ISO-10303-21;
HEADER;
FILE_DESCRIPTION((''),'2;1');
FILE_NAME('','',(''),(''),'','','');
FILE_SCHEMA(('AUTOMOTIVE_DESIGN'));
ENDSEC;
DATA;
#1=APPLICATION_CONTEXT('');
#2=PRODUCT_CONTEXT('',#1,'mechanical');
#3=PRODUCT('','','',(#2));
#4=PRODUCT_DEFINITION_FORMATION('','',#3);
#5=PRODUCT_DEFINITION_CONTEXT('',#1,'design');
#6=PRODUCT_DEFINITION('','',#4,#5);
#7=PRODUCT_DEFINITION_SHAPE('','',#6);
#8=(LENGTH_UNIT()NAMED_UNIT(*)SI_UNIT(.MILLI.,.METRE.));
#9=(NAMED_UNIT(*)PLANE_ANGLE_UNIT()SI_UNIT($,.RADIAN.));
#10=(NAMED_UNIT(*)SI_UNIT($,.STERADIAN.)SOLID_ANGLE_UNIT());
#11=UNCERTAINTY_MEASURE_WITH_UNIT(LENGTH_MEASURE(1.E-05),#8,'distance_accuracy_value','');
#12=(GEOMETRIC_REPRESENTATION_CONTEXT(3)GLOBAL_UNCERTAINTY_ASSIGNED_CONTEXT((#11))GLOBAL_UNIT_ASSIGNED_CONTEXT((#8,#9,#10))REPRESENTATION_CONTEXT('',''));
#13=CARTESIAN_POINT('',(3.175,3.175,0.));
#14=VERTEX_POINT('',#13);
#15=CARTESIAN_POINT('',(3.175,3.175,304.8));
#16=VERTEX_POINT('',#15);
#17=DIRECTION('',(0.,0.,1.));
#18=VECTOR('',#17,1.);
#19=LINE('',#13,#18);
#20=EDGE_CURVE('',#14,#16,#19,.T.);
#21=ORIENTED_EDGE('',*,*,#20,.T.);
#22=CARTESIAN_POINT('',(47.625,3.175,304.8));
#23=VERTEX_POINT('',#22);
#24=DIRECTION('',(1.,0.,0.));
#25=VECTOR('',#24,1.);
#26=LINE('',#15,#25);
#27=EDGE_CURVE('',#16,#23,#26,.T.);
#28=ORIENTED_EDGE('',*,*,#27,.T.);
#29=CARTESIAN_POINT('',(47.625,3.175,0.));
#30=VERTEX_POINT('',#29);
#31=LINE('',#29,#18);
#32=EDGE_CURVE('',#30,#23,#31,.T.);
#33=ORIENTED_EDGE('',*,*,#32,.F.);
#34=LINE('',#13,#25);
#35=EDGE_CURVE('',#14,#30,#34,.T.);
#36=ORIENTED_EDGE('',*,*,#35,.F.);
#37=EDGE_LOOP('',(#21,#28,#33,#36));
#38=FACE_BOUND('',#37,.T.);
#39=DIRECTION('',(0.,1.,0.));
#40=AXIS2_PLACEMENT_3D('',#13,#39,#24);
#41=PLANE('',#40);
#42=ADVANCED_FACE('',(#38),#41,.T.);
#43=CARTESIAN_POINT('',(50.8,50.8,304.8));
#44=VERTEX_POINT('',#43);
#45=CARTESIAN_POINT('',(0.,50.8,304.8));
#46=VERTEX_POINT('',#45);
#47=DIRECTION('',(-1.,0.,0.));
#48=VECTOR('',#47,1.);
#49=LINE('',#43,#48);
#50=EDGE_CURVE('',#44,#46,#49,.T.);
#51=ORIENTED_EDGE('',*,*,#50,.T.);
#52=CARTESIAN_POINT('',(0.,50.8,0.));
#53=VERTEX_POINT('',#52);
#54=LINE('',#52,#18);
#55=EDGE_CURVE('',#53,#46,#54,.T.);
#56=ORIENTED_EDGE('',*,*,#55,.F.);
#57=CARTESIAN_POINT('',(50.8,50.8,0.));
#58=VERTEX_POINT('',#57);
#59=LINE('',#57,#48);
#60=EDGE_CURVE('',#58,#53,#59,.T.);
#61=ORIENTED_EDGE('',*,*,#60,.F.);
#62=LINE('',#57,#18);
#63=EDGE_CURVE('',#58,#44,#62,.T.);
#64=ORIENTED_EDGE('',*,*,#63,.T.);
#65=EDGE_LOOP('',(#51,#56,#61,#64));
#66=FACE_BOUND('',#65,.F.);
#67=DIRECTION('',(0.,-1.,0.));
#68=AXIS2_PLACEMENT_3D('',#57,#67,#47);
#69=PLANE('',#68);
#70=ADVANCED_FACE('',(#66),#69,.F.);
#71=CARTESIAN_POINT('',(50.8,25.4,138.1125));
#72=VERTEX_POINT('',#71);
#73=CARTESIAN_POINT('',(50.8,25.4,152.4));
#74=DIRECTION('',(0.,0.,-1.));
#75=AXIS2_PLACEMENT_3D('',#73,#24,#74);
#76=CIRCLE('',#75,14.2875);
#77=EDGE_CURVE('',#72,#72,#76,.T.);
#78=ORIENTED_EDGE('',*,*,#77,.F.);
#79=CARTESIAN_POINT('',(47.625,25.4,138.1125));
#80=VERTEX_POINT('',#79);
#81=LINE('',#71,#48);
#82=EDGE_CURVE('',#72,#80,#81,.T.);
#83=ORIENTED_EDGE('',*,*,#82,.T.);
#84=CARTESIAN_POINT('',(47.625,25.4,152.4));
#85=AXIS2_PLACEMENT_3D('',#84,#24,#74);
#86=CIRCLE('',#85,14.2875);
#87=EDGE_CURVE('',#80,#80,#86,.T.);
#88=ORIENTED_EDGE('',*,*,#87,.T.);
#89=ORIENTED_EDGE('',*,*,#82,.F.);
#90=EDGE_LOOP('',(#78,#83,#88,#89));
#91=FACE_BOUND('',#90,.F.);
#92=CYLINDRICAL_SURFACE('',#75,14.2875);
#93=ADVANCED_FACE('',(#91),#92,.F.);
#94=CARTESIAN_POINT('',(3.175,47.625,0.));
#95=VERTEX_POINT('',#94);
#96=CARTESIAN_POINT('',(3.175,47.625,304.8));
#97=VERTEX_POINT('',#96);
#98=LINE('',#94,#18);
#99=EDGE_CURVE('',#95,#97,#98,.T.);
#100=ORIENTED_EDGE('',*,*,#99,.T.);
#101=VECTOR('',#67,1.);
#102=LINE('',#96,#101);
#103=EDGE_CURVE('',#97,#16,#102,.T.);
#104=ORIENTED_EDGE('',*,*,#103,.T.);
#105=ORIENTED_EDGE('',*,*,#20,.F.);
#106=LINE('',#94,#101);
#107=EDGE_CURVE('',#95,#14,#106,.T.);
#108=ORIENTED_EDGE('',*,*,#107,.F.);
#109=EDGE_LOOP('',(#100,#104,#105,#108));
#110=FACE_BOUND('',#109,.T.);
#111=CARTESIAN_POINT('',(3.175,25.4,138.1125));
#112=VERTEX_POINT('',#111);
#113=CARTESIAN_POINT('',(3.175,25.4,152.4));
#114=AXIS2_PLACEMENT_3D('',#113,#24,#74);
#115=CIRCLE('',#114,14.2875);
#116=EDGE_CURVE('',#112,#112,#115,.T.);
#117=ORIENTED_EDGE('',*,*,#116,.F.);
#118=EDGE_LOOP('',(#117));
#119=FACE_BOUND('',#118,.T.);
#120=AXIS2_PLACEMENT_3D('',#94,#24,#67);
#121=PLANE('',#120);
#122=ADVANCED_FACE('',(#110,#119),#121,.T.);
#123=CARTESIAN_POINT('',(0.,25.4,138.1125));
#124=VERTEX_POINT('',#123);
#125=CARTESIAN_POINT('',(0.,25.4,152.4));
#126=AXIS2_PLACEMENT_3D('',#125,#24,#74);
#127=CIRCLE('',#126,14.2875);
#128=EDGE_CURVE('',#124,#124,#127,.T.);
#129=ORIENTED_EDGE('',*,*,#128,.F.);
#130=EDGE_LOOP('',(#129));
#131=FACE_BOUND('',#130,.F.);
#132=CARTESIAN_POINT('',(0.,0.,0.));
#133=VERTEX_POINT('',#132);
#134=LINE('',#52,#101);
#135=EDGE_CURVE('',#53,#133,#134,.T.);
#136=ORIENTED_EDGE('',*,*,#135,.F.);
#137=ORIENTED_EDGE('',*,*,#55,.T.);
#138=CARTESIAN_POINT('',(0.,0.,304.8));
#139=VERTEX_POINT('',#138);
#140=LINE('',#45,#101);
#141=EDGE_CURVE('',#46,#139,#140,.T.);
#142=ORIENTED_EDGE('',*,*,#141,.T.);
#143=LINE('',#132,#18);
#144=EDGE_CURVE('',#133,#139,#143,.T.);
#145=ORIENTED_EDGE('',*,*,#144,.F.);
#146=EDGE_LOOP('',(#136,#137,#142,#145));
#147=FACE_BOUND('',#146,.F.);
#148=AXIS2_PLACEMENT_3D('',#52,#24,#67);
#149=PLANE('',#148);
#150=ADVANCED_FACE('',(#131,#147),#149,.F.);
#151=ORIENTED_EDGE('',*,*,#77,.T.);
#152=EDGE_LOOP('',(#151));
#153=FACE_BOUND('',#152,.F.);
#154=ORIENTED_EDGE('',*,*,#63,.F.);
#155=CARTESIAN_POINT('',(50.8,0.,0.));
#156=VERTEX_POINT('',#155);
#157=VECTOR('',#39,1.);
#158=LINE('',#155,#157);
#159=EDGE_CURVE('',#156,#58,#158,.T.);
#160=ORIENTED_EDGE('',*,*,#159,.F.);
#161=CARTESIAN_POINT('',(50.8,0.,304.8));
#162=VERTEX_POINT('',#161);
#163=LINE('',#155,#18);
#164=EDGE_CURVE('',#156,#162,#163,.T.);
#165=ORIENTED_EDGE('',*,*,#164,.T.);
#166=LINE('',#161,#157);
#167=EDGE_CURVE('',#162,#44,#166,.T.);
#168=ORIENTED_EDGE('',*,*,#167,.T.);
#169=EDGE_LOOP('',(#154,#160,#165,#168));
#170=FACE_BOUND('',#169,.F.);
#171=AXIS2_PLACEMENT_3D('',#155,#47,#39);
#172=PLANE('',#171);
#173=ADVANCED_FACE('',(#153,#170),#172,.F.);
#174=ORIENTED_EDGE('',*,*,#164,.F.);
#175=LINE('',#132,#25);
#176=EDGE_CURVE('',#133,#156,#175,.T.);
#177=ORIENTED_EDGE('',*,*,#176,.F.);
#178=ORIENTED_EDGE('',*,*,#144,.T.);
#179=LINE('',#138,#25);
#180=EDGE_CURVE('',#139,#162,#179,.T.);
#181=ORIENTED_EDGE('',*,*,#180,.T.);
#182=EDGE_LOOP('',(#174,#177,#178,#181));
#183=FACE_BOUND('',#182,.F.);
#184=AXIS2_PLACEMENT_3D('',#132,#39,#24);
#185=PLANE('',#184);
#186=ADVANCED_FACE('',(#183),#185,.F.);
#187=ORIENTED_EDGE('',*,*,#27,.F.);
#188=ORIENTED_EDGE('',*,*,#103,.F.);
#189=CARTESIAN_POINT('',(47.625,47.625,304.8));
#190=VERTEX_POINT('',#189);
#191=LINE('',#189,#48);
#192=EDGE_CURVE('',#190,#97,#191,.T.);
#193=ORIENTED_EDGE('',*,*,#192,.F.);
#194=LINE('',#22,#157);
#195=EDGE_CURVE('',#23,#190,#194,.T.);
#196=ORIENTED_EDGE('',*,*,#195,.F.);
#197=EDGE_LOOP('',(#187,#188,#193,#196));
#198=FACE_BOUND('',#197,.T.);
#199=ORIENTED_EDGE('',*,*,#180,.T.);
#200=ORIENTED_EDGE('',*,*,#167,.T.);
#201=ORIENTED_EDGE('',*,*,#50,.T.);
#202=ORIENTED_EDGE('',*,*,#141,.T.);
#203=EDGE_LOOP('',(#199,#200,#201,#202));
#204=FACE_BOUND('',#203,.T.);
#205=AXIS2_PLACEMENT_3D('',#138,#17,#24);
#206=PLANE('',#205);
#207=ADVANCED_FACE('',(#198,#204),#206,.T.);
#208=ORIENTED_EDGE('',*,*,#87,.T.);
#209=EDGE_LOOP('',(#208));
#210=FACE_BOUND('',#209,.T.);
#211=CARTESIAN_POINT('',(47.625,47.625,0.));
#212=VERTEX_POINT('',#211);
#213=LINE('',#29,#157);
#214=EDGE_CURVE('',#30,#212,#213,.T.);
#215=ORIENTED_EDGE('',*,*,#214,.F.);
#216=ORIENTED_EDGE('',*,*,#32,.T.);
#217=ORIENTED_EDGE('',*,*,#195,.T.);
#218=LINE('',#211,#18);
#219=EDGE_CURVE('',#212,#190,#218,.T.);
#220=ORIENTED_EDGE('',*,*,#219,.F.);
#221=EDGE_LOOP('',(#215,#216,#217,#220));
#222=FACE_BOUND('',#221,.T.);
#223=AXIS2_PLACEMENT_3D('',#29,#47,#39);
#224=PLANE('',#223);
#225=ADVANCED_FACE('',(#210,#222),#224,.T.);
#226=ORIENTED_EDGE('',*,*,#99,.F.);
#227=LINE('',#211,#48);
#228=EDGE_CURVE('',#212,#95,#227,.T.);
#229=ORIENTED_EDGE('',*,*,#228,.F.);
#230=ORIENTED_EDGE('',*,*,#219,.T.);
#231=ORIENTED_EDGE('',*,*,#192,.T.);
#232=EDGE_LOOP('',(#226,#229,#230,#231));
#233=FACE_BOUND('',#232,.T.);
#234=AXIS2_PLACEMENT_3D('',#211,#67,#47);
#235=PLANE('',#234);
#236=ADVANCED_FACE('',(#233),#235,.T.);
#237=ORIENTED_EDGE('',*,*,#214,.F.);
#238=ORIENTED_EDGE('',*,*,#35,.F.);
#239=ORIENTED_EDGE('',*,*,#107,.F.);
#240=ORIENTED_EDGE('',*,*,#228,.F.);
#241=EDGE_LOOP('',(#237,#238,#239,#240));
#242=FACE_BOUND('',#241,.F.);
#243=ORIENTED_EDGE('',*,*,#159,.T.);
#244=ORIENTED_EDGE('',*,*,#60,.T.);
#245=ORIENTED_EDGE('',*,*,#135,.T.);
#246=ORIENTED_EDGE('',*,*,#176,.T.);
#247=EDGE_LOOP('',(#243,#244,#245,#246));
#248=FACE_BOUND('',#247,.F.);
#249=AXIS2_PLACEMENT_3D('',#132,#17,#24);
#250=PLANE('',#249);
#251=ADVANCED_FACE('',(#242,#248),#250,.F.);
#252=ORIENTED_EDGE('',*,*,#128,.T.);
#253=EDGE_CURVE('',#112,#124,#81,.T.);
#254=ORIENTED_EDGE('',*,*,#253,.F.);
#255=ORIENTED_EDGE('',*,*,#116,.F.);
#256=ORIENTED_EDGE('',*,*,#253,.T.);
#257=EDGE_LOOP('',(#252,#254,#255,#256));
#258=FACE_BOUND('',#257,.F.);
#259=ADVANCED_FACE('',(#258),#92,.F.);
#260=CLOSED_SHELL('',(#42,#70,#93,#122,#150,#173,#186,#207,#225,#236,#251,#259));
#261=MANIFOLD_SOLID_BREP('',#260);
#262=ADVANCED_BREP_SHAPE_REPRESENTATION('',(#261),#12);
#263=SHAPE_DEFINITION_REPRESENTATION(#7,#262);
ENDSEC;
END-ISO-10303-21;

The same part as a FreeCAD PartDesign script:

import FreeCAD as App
import Part
import Sketcher

V = App.Vector
Q = App.Units.Quantity

doc = App.newDocument("Part")
body = doc.addObject("PartDesign::Body", "Body")

sketch1 = doc.addObject("Sketcher::SketchObject", "Sketch")
body.addObject(sketch1)
sketch1.AttachmentSupport = (doc.XY_Plane, [""])
sketch1.MapMode = "FlatFace"
sketch1.addGeometry([
    Part.LineSegment(V(0, 51, 0), V(0, 0, 0)),
    Part.LineSegment(V(0, 0, 0), V(51, 0, 0)),
    Part.LineSegment(V(51, 0, 0), V(51, 51, 0)),
    Part.LineSegment(V(51, 51, 0), V(0, 51, 0)),
    Part.LineSegment(V(48, 3, 0), V(3, 3, 0)),
    Part.LineSegment(V(3, 3, 0), V(3, 48, 0)),
    Part.LineSegment(V(3, 48, 0), V(48, 48, 0)),
    Part.LineSegment(V(48, 48, 0), V(48, 3, 0)),
], False)
sketch1.addConstraint([
    Sketcher.Constraint("Coincident", 0, 2, 1, 1),
    Sketcher.Constraint("Coincident", 1, 2, 2, 1),
    Sketcher.Constraint("Coincident", 2, 2, 3, 1),
    Sketcher.Constraint("Coincident", 3, 2, 0, 1),
    Sketcher.Constraint("Coincident", 4, 2, 5, 1),
    Sketcher.Constraint("Coincident", 5, 2, 6, 1),
    Sketcher.Constraint("Coincident", 6, 2, 7, 1),
    Sketcher.Constraint("Coincident", 7, 2, 4, 1),
    Sketcher.Constraint("Vertical", 0),
    Sketcher.Constraint("Horizontal", 1),
    Sketcher.Constraint("Vertical", 2),
    Sketcher.Constraint("Horizontal", 3),
    Sketcher.Constraint("Horizontal", 4),
    Sketcher.Constraint("Vertical", 5),
    Sketcher.Constraint("Horizontal", 6),
    Sketcher.Constraint("Vertical", 7),
    Sketcher.Constraint("Coincident", 0, 2, -1, 1),
    Sketcher.Constraint("Equal", 3, 0),
    Sketcher.Constraint("Equal", 6, 5),
    Sketcher.Constraint("DistanceX", 1, 1, 1, 2, Q("2 in")),
    Sketcher.Constraint("DistanceX", 4, 2, 4, 1, Q("1.75 in")),
    Sketcher.Constraint("DistanceX", -1, 1, 4, 2, Q("0.125 in")),
    Sketcher.Constraint("DistanceY", -1, 1, 4, 2, Q("0.125 in")),
])
pad1 = doc.addObject("PartDesign::Pad", "Pad")
body.addObject(pad1)
pad1.Profile = sketch1
pad1.Length = Q("12 in")

sketch2 = doc.addObject("Sketcher::SketchObject", "Sketch001")
body.addObject(sketch2)
sketch2.AttachmentSupport = (doc.YZ_Plane, [""])
sketch2.MapMode = "FlatFace"
sketch2.AttachmentOffset = App.Placement(V(0, 0, 2 * 25.4), App.Rotation())
sketch2.addGeometry(Part.Circle(V(25, 152, 0), V(0, 0, 1), 14), False)
sketch2.addConstraint([
    Sketcher.Constraint("Diameter", 0, Q("1.125 in")),
    Sketcher.Constraint("DistanceX", -1, 1, 0, 3, Q("1 in")),
    Sketcher.Constraint("DistanceY", -1, 1, 0, 3, Q("6 in")),
])
pocket1 = doc.addObject("PartDesign::Pocket", "Pocket")
body.addObject(pocket1)
pocket1.Profile = sketch2
pocket1.Type = "ThroughAll"

doc.recompute()
